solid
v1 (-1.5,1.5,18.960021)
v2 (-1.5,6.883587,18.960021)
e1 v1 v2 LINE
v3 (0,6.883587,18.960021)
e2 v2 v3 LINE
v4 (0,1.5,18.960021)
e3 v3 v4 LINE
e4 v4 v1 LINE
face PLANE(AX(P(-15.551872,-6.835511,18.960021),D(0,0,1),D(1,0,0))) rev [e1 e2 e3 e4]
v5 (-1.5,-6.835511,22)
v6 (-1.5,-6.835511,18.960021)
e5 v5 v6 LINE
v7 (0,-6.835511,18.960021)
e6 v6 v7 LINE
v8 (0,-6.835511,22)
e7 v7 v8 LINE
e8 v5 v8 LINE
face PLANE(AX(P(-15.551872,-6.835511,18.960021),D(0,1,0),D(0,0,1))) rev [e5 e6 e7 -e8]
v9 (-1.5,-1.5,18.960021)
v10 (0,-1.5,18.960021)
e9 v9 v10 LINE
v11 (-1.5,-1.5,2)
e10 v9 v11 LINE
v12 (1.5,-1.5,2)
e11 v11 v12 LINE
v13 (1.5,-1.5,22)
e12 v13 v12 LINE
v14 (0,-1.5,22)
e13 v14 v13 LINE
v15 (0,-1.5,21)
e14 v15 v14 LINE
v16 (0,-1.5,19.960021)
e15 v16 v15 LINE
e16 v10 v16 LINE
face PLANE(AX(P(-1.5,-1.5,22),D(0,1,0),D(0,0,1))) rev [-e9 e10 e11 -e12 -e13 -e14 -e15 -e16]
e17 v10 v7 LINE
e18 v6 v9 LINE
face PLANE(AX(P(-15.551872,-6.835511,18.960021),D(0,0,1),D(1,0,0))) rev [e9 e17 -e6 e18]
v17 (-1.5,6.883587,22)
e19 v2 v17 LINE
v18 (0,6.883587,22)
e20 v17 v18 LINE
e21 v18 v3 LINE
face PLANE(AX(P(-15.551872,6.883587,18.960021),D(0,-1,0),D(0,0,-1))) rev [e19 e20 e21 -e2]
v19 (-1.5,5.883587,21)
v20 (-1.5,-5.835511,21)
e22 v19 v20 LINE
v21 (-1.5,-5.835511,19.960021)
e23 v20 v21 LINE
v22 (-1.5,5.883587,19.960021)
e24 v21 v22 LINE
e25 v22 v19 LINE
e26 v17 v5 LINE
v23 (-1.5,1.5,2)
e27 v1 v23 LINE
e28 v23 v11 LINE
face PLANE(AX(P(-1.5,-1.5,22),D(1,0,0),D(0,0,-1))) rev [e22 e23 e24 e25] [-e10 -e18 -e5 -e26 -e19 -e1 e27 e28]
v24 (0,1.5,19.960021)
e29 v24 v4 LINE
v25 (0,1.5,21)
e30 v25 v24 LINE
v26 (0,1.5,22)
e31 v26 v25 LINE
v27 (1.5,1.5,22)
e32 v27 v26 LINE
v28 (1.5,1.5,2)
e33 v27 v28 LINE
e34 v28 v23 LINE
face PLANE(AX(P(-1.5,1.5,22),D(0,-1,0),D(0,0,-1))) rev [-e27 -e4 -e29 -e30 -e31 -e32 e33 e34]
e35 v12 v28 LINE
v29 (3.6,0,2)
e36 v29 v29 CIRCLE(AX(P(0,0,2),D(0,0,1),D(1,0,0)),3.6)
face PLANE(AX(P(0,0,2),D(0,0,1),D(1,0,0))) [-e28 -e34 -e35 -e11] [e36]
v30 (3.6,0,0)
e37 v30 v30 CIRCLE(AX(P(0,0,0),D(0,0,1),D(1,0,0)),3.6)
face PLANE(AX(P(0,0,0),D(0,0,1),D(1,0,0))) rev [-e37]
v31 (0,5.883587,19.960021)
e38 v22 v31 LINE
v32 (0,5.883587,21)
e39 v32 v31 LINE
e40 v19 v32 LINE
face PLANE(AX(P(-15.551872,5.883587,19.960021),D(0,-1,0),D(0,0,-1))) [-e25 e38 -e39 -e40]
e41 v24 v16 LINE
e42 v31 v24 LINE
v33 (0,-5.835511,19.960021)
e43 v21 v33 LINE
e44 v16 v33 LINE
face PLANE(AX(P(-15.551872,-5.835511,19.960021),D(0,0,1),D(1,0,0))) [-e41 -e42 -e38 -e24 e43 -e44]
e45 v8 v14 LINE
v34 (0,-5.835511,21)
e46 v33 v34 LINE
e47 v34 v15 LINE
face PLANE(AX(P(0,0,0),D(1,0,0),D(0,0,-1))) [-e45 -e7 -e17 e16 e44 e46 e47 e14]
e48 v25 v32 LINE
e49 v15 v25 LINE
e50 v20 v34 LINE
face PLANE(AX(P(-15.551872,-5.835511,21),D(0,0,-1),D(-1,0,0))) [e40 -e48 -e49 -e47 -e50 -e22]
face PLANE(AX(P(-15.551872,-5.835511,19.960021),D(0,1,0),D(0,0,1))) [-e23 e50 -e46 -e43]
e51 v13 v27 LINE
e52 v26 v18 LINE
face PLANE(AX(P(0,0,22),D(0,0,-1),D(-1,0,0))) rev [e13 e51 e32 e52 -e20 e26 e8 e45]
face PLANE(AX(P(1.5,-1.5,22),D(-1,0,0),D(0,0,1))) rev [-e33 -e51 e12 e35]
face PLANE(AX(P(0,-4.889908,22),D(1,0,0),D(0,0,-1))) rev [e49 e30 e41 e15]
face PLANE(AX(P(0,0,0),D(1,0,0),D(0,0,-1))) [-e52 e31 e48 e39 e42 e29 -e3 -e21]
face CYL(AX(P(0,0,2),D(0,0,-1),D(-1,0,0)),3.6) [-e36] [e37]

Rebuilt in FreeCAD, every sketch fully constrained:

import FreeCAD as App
import Part
import Sketcher


def add_polygon(sketch, points):
    """Adds a closed chain of lines whose ends are joined by coincident constraints."""
    first, n = sketch.GeometryCount, len(points)
    for a, b in zip(points, points[1:] + points[:1]):
        sketch.addGeometry(Part.LineSegment(App.Vector(*a, 0), App.Vector(*b, 0)), False)
    for i in range(n):
        sketch.addConstraint(Sketcher.Constraint("Coincident", first + i, 2, first + (i + 1) % n, 1))

doc = App.newDocument("Part")
body = doc.addObject("PartDesign::Body", "Body")

# Sketch on XY plane
sketch1 = body.newObject("Sketcher::SketchObject", "Sketch")
sketch1.AttachmentSupport = (doc.getObject("XY_Plane"), [""])
sketch1.MapMode = "FlatFace"
sketch1.addGeometry(Part.Circle(App.Vector(0, 0, 0), App.Vector(0, 0, 1), 3.6), False)
sketch1.addConstraint(Sketcher.Constraint("Coincident", 0, 3, -1, 1))
sketch1.addConstraint(Sketcher.Constraint("Diameter", 0, 7.2))
pad1 = body.newObject("PartDesign::Pad", "Pad")
pad1.Profile = sketch1
pad1.Length = 2

# Sketch on XY plane
sketch2 = body.newObject("Sketcher::SketchObject", "Sketch001")
sketch2.AttachmentSupport = (doc.getObject("XY_Plane"), [""])
sketch2.MapMode = "FlatFace"
sketch2.AttachmentOffset = App.Placement(App.Vector(0, 0, 2), App.Rotation())
add_polygon(sketch2, [(-1.5, 1.5), (-1.5, -1.5), (1.5, -1.5), (1.5, 1.5)])  # lines 0-3
sketch2.addConstraint(Sketcher.Constraint("Vertical", 0))
sketch2.addConstraint(Sketcher.Constraint("Horizontal", 1))
sketch2.addConstraint(Sketcher.Constraint("Vertical", 2))
sketch2.addConstraint(Sketcher.Constraint("Horizontal", 3))
sketch2.addConstraint(Sketcher.Constraint("Symmetric", 0, 2, 2, 2, -1, 1))
sketch2.addConstraint(Sketcher.Constraint("Equal", 3, 0))
sketch2.addConstraint(Sketcher.Constraint("DistanceX", 1, 1, 1, 2, 3.0))
pad2 = body.newObject("PartDesign::Pad", "Pad001")
pad2.Profile = sketch2
pad2.Length = 20

# Sketch on XZ plane
sketch3 = body.newObject("Sketcher::SketchObject", "Sketch002")
sketch3.AttachmentSupport = (doc.getObject("XZ_Plane"), [""])
sketch3.MapMode = "FlatFace"
sketch3.AttachmentOffset = App.Placement(App.Vector(0, 0, -1.5), App.Rotation())
add_polygon(sketch3, [(-1.5, 18.960021), (-1.5, 22), (0, 22), (0, 18.960021)])  # lines 0-3
sketch3.addConstraint(Sketcher.Constraint("Vertical", 0))
sketch3.addConstraint(Sketcher.Constraint("Horizontal", 1))
sketch3.addConstraint(Sketcher.Constraint("Vertical", 2))
sketch3.addConstraint(Sketcher.Constraint("Horizontal", 3))
sketch3.addConstraint(Sketcher.Constraint("PointOnObject", 1, 2, -2))
sketch3.addConstraint(Sketcher.Constraint("DistanceX", 1, 1, 1, 2, 1.5))
sketch3.addConstraint(Sketcher.Constraint("DistanceY", -1, 1, 0, 2, 22.0))
sketch3.addConstraint(Sketcher.Constraint("DistanceY", 0, 1, 0, 2, 3.039979))
pocket1 = body.newObject("PartDesign::Pocket", "Pocket")
pocket1.Profile = sketch3
pocket1.Length = 3
pocket1.Reversed = True

# Sketch on YZ plane
sketch4 = body.newObject("Sketcher::SketchObject", "Sketch003")
sketch4.AttachmentSupport = (doc.getObject("YZ_Plane"), [""])
sketch4.MapMode = "FlatFace"
add_polygon(sketch4, [(6.883587, 18.960021), (-6.835511, 18.960021), (-6.835511, 22), (6.883587, 22)])  # lines 0-3
add_polygon(sketch4, [(-5.835511, 21), (-5.835511, 19.960021), (5.883587, 19.960021), (5.883587, 21)])  # lines 4-7
sketch4.addConstraint(Sketcher.Constraint("Horizontal", 0))
sketch4.addConstraint(Sketcher.Constraint("Vertical", 1))
sketch4.addConstraint(Sketcher.Constraint("Horizontal", 2))
sketch4.addConstraint(Sketcher.Constraint("Vertical", 3))
sketch4.addConstraint(Sketcher.Constraint("Vertical", 4))
sketch4.addConstraint(Sketcher.Constraint("Horizontal", 5))
sketch4.addConstraint(Sketcher.Constraint("Vertical", 6))
sketch4.addConstraint(Sketcher.Constraint("Horizontal", 7))
sketch4.addConstraint(Sketcher.Constraint("DistanceY", -1, 1, 1, 2, 22.0))
sketch4.addConstraint(Sketcher.Constraint("DistanceY", -1, 1, 6, 2, 21.0))
sketch4.addConstraint(Sketcher.Constraint("DistanceX", 0, 2, 4, 2, 1.0))
sketch4.addConstraint(Sketcher.Constraint("DistanceY", 0, 2, 4, 2, 1.0))
sketch4.addConstraint(Sketcher.Constraint("DistanceX", 5, 2, 3, 2, 1.0))
sketch4.addConstraint(Sketcher.Constraint("DistanceY", 1, 1, 1, 2, 3.039979))
sketch4.addConstraint(Sketcher.Constraint("DistanceX", 0, 2, 0, 1, 13.719098))
sketch4.addConstraint(Sketcher.Constraint("DistanceX", 0, 2, -1, 1, 6.835511))
pad3 = body.newObject("PartDesign::Pad", "Pad002")
pad3.Profile = sketch4
pad3.Length = 1.5
pad3.Reversed = True

doc.recompute()
